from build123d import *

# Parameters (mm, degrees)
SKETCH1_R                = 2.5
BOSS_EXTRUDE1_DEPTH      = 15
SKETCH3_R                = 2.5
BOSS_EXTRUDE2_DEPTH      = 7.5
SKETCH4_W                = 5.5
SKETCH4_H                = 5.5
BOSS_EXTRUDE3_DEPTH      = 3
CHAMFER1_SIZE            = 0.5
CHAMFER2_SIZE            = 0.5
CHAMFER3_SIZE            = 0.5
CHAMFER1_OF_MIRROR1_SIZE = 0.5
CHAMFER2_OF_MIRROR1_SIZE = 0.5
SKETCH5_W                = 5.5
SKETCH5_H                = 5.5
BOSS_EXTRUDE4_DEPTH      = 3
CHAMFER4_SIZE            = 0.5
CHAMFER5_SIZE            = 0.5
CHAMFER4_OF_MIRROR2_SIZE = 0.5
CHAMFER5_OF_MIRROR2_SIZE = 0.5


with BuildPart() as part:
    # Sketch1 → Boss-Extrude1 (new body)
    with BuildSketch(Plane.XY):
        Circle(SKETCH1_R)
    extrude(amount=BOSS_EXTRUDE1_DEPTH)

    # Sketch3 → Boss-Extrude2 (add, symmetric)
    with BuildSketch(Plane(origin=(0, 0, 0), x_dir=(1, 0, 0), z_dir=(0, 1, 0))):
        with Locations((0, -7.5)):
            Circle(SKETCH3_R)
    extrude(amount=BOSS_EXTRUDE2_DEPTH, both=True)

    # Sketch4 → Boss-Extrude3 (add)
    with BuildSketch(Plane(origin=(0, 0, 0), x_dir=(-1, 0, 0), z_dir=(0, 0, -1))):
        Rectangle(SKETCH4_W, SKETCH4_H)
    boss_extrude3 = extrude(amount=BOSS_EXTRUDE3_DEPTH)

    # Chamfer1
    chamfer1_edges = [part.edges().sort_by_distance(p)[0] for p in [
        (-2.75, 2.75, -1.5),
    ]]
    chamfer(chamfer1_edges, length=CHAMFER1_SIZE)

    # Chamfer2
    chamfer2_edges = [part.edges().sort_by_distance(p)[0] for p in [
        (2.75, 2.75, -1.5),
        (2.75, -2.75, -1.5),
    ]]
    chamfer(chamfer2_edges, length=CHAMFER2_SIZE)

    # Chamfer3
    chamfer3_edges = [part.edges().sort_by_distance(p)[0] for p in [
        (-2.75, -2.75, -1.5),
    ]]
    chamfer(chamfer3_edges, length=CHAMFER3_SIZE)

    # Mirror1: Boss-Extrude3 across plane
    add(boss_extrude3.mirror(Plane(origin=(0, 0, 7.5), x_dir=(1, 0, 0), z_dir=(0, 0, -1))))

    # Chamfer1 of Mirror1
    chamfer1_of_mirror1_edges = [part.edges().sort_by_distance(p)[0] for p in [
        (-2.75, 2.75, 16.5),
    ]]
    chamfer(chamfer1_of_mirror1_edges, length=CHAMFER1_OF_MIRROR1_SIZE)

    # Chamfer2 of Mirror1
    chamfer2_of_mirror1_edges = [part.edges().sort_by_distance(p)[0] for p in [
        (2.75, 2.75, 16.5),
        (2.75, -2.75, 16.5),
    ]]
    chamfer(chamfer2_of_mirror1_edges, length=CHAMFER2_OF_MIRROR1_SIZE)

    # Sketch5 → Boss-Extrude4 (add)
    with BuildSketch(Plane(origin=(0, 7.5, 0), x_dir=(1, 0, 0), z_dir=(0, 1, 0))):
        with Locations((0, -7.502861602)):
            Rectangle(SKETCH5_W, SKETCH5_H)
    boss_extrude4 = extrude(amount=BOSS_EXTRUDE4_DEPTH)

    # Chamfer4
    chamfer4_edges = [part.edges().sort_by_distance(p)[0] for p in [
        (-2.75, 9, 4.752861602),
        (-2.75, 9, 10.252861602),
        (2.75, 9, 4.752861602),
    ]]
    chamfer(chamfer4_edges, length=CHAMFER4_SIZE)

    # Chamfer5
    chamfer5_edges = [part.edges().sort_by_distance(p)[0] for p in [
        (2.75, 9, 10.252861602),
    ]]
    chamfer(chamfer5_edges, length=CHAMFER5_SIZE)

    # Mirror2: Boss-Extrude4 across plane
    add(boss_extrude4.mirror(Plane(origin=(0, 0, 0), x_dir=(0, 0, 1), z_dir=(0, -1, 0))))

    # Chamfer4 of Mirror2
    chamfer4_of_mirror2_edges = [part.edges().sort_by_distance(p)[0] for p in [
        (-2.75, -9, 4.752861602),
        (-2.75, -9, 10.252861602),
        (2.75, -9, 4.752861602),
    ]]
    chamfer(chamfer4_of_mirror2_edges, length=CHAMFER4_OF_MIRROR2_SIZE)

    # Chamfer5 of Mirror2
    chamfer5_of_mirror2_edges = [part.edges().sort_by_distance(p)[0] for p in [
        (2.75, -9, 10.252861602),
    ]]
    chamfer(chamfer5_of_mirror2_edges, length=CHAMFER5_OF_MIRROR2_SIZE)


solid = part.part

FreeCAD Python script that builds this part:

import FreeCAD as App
import Part
import Sketcher
from FreeCAD import Vector
Q = App.Units.Quantity


def edges_at(feature, points):
    """Names of the edges that pass closest to the given points."""
    edges = feature.Shape.Edges
    near = lambda p: min(range(len(edges)), key=lambda i: edges[i].distToShape(Part.Vertex(*p))[0])
    return sorted({f"Edge{near(p) + 1}" for p in points})

doc = App.newDocument("Part")
params = doc.addObject("Spreadsheet::Sheet", "Params")
for row, (alias, value) in enumerate([
    ("sketch1_diameter", "5 mm"),
    ("pad1_length", "15 mm"),
    ("sketch2_diameter", "5 mm"),
    ("pad2_length", "15 mm"),
    ("sketch3_width", "5.5 mm"),
    ("pad3_length", "3 mm"),
    ("chamfer_size", "0.5 mm"),
    ("chamfer2_size", "0.5 mm"),
    ("chamfer3_size", "0.5 mm"),
    ("chamfer4_size", "0.5 mm"),
    ("chamfer5_size", "0.5 mm"),
    ("sketch4_width", "5.5 mm"),
    ("pad4_length", "3 mm"),
    ("chamfer6_size", "0.5 mm"),
    ("chamfer7_size", "0.5 mm"),
    ("chamfer8_size", "0.5 mm"),
    ("chamfer9_size", "0.5 mm"),
], start=1):
    params.set(f"A{row}", alias)
    params.set(f"B{row}", "=" + value)
    params.setAlias(f"B{row}", alias)

body = doc.addObject("PartDesign::Body", "Body")

# Sketch on XY plane
sketch1 = body.newObject("Sketcher::SketchObject", "Sketch")
sketch1.AttachmentSupport = (doc.getObject("XY_Plane"), [""])
sketch1.MapMode = "FlatFace"
sketch1.addGeometry(Part.Circle(Vector(0, 0, 0), Vector(0, 0, 1), 2.5), False)
sketch1.addConstraint(Sketcher.Constraint("Coincident", 0, 3, -1, 1))
sketch1.addConstraint(Sketcher.Constraint("Diameter", 0, Q("5 mm")))
sketch1.setExpression("Constraints[1]", "Params.sketch1_diameter")
pad1 = body.newObject("PartDesign::Pad", "Pad")
pad1.Profile = sketch1
pad1.setExpression("Length", "Params.pad1_length")

# Sketch on XZ plane
sketch2 = body.newObject("Sketcher::SketchObject", "Sketch001")
sketch2.AttachmentSupport = (doc.getObject("XZ_Plane"), [""])
sketch2.MapMode = "FlatFace"
sketch2.addGeometry(Part.Circle(Vector(0, 7.5, 0), Vector(0, 0, 1), 2.5), False)
sketch2.addConstraint(Sketcher.Constraint("PointOnObject", 0, 3, -2))
sketch2.addConstraint(Sketcher.Constraint("Diameter", 0, Q("5 mm")))
sketch2.addConstraint(Sketcher.Constraint("DistanceY", -1, 1, 0, 3, Q("7.5 mm")))
sketch2.setExpression("Constraints[1]", "Params.sketch2_diameter")
pad2 = body.newObject("PartDesign::Pad", "Pad001")
pad2.Profile = sketch2
pad2.setExpression("Length", "Params.pad2_length")
pad2.Midplane = True

# Sketch on XY plane
sketch3 = body.newObject("Sketcher::SketchObject", "Sketch002")
sketch3.AttachmentSupport = (doc.getObject("XY_Plane"), [""])
sketch3.MapMode = "FlatFace"
sketch3.addGeometry(Part.LineSegment(Vector(3, 3, 0), Vector(3, -3, 0)), False)
sketch3.addGeometry(Part.LineSegment(Vector(3, -3, 0), Vector(-3, -3, 0)), False)
sketch3.addGeometry(Part.LineSegment(Vector(-3, -3, 0), Vector(-3, 3, 0)), False)
sketch3.addGeometry(Part.LineSegment(Vector(-3, 3, 0), Vector(3, 3, 0)), False)
sketch3.addConstraint(Sketcher.Constraint("Coincident", 0, 2, 1, 1))
sketch3.addConstraint(Sketcher.Constraint("Coincident", 1, 2, 2, 1))
sketch3.addConstraint(Sketcher.Constraint("Coincident", 2, 2, 3, 1))
sketch3.addConstraint(Sketcher.Constraint("Coincident", 3, 2, 0, 1))
sketch3.addConstraint(Sketcher.Constraint("Vertical", 0))
sketch3.addConstraint(Sketcher.Constraint("Horizontal", 1))
sketch3.addConstraint(Sketcher.Constraint("Vertical", 2))
sketch3.addConstraint(Sketcher.Constraint("Horizontal", 3))
sketch3.addConstraint(Sketcher.Constraint("Symmetric", 0, 2, 2, 2, -1, 1))
sketch3.addConstraint(Sketcher.Constraint("Equal", 3, 0))
sketch3.addConstraint(Sketcher.Constraint("DistanceX", 1, 2, 1, 1, Q("5.5 mm")))
sketch3.setExpression("Constraints[10]", "Params.sketch3_width")
pad3 = body.newObject("PartDesign::Pad", "Pad002")
pad3.Profile = sketch3
pad3.setExpression("Length", "Params.pad3_length")
pad3.Reversed = True
doc.recompute()

chamfer = body.newObject("PartDesign::Chamfer", "Chamfer")
chamfer.Base = (pad3, edges_at(pad3, [(-2.75, 2.75, -1.5)]))
chamfer.setExpression("Size", "Params.chamfer_size")
doc.recompute()

chamfer2 = body.newObject("PartDesign::Chamfer", "Chamfer001")
chamfer2.Base = (chamfer, edges_at(chamfer, [(2.75, 2.75, -1.5), (2.75, -2.75, -1.5)]))
chamfer2.setExpression("Size", "Params.chamfer2_size")
doc.recompute()

chamfer3 = body.newObject("PartDesign::Chamfer", "Chamfer002")
chamfer3.Base = (chamfer2, edges_at(chamfer2, [(-2.75, -2.75, -1.5)]))
chamfer3.setExpression("Size", "Params.chamfer3_size")
doc.recompute()

datumplane = body.newObject("PartDesign::Plane", "DatumPlane")
datumplane.AttachmentSupport = (doc.getObject("XY_Plane"), [""])
datumplane.MapMode = "FlatFace"
datumplane.AttachmentOffset = App.Placement(Vector(0, 0, 7.5), App.Rotation())
mirrored = body.newObject("PartDesign::Mirrored", "Mirrored")
mirrored.Originals = [pad3]
mirrored.MirrorPlane = (datumplane, [""])
body.Tip = mirrored
doc.recompute()

chamfer4 = body.newObject("PartDesign::Chamfer", "Chamfer003")
chamfer4.Base = (mirrored, edges_at(mirrored, [(-2.75, 2.75, 16.5)]))
chamfer4.setExpression("Size", "Params.chamfer4_size")
doc.recompute()

chamfer5 = body.newObject("PartDesign::Chamfer", "Chamfer004")
chamfer5.Base = (chamfer4, edges_at(chamfer4, [(2.75, 2.75, 16.5), (2.75, -2.75, 16.5)]))
chamfer5.setExpression("Size", "Params.chamfer5_size")

# Sketch on XZ plane
sketch4 = body.newObject("Sketcher::SketchObject", "Sketch003")
sketch4.AttachmentSupport = (doc.getObject("XZ_Plane"), [""])
sketch4.MapMode = "FlatFace"
sketch4.AttachmentOffset = App.Placement(Vector(0, 0, -7.5), App.Rotation())
sketch4.addGeometry(Part.LineSegment(Vector(-3, 5, 0), Vector(-3, 10, 0)), False)
sketch4.addGeometry(Part.LineSegment(Vector(-3, 10, 0), Vector(3, 10, 0)), False)
sketch4.addGeometry(Part.LineSegment(Vector(3, 10, 0), Vector(3, 5, 0)), False)
sketch4.addGeometry(Part.LineSegment(Vector(3, 5, 0), Vector(-3, 5, 0)), False)
sketch4.addConstraint(Sketcher.Constraint("Coincident", 0, 2, 1, 1))
sketch4.addConstraint(Sketcher.Constraint("Coincident", 1, 2, 2, 1))
sketch4.addConstraint(Sketcher.Constraint("Coincident", 2, 2, 3, 1))
sketch4.addConstraint(Sketcher.Constraint("Coincident", 3, 2, 0, 1))
sketch4.addConstraint(Sketcher.Constraint("Vertical", 0))
sketch4.addConstraint(Sketcher.Constraint("Horizontal", 1))
sketch4.addConstraint(Sketcher.Constraint("Vertical", 2))
sketch4.addConstraint(Sketcher.Constraint("Horizontal", 3))
sketch4.addConstraint(Sketcher.Constraint("Equal", 3, 0))
sketch4.addConstraint(Sketcher.Constraint("DistanceX", 1, 1, 1, 2, Q("5.5 mm")))
sketch4.addConstraint(Sketcher.Constraint("DistanceX", 0, 2, -1, 1, Q("2.75 mm")))
sketch4.addConstraint(Sketcher.Constraint("DistanceY", -1, 1, 0, 2, Q("10.252862 mm")))
sketch4.setExpression("Constraints[9]", "Params.sketch4_width")
pad4 = body.newObject("PartDesign::Pad", "Pad003")
pad4.Profile = sketch4
pad4.setExpression("Length", "Params.pad4_length")
pad4.Reversed = True
doc.recompute()

chamfer6 = body.newObject("PartDesign::Chamfer", "Chamfer005")
chamfer6.Base = (pad4, edges_at(pad4, [(-2.75, 9, 4.753), (-2.75, 9, 10.253), (2.75, 9, 4.753)]))
chamfer6.setExpression("Size", "Params.chamfer6_size")
doc.recompute()

chamfer7 = body.newObject("PartDesign::Chamfer", "Chamfer006")
chamfer7.Base = (chamfer6, edges_at(chamfer6, [(2.75, 9, 10.253)]))
chamfer7.setExpression("Size", "Params.chamfer7_size")
doc.recompute()

mirrored2 = body.newObject("PartDesign::Mirrored", "Mirrored001")
mirrored2.Originals = [pad4]
mirrored2.MirrorPlane = (doc.getObject("XZ_Plane"), [""])
body.Tip = mirrored2
doc.recompute()

chamfer8 = body.newObject("PartDesign::Chamfer", "Chamfer007")
chamfer8.Base = (mirrored2, edges_at(mirrored2, [(-2.75, -9, 4.753), (-2.75, -9, 10.253), (2.75, -9, 4.753)]))
chamfer8.setExpression("Size", "Params.chamfer8_size")
doc.recompute()

chamfer9 = body.newObject("PartDesign::Chamfer", "Chamfer008")
chamfer9.Base = (chamfer8, edges_at(chamfer8, [(2.75, -9, 10.253)]))
chamfer9.setExpression("Size", "Params.chamfer9_size")

doc.recompute()
